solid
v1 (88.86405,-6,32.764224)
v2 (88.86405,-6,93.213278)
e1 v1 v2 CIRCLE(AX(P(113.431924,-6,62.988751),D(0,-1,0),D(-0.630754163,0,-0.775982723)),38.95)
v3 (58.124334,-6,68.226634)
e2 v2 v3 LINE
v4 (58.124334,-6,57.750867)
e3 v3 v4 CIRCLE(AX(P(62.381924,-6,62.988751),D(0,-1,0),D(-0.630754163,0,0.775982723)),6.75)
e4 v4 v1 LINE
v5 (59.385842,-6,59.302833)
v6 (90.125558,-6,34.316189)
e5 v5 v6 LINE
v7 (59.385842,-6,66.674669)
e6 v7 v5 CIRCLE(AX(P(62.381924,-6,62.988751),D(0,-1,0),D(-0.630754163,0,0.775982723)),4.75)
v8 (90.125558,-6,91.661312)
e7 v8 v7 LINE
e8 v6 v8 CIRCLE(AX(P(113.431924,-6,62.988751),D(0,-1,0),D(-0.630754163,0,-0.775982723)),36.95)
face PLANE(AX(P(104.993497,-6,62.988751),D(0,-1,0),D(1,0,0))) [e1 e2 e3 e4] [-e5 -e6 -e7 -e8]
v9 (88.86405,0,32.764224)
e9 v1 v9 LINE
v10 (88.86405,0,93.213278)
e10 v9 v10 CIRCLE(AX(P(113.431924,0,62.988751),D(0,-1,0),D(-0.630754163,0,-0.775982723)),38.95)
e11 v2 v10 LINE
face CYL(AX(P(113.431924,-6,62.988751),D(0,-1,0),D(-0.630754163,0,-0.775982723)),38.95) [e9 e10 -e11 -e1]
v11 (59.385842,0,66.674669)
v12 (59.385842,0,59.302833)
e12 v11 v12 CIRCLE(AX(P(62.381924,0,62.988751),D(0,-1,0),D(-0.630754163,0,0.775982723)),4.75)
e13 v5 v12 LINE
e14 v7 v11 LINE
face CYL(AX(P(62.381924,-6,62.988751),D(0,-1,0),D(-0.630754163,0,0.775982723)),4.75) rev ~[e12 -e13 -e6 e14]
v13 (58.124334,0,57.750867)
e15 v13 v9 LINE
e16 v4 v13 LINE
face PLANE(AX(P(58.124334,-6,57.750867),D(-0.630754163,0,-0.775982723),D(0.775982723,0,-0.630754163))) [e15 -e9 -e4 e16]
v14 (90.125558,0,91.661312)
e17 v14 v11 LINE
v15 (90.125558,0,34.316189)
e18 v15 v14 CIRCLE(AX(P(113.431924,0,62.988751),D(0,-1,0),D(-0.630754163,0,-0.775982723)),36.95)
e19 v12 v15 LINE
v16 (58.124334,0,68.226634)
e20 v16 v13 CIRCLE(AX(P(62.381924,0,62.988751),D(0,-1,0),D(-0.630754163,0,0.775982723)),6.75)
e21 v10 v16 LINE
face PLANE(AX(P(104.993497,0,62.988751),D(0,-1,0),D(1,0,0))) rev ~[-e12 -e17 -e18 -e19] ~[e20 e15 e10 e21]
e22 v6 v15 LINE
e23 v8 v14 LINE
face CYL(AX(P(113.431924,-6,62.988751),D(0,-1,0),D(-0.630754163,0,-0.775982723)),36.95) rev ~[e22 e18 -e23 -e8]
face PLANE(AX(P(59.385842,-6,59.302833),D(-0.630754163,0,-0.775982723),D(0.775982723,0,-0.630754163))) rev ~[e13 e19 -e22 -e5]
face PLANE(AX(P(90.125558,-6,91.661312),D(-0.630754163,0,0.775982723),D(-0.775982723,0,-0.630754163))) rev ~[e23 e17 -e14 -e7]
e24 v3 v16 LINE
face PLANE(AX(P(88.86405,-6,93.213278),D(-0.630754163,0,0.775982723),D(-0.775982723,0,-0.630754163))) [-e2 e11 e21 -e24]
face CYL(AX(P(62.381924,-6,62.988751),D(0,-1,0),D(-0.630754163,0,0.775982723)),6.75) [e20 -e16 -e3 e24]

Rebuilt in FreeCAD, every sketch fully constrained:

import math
import FreeCAD as App
import Part
import Sketcher
from FreeCAD import Vector

doc = App.newDocument("Part")
params = doc.addObject("Spreadsheet::Sheet", "Params")
for row, (alias, value) in enumerate([
    ("sketch1_radius", "37.95 mm"),
    ("sketch1_radius2", "5.75 mm"),
    ("pad1_length", "6 mm"),
    ("sketch2_radius", "4.75 mm"),
    ("sketch2_radius2", "36.95 mm"),
    ("pocket1_length", "25 mm"),
    ("sketch3_radius", "6.75 mm"),
    ("sketch3_radius2", "38.95 mm"),
    ("sketch3_radius3", "5.75 mm"),
    ("pad2_length", "6 mm"),
], start=1):
    params.set(f"A{row}", alias)
    params.set(f"B{row}", "=" + value)
    params.setAlias(f"B{row}", alias)

body = doc.addObject("PartDesign::Body", "Body")

# Sketch on XZ plane
sketch1 = body.newObject("Sketcher::SketchObject", "Sketch")
sketch1.AttachmentSupport = (doc.getObject("XZ_Plane"), [""])
sketch1.MapMode = "FlatFace"
sketch1.addGeometry([
    Part.LineSegment(Vector(58.755088, 58.52685, 0), Vector(89.494804, 33.540206, 0)),
    Part.ArcOfCircle(Part.Circle(Vector(113.431924, 62.988751, 0), Vector(0, 0, 1), 37.95), math.radians(-129.105785), math.radians(129.105785)),
    Part.LineSegment(Vector(89.494804, 92.437295, 0), Vector(58.755088, 67.450651, 0)),
    Part.ArcOfCircle(Part.Circle(Vector(62.381924, 62.988751, 0), Vector(0, 0, 1), 5.75), math.radians(129.105785), math.radians(230.894215)),
], False)
sketch1.addConstraint([
    Sketcher.Constraint("Tangent", 0, 2, 1, 1),
    Sketcher.Constraint("Tangent", 1, 2, 2, 1),
    Sketcher.Constraint("Tangent", 2, 2, 3, 1),
    Sketcher.Constraint("Tangent", 3, 2, 0, 1),
    Sketcher.Constraint("Horizontal", 1, 3, 3, 3),
    Sketcher.Constraint("Radius", 1, 37.95),
    Sketcher.Constraint("Radius", 3, 5.75),
    Sketcher.Constraint("DistanceX", 3, 3, 1, 3, 51.05),
    Sketcher.Constraint("DistanceY", -1, 1, 1, 3, 62.988751),
    Sketcher.Constraint("DistanceX", -1, 1, 1, 3, 113.431924),
])
sketch1.setExpression("Constraints[5]", "Params.sketch1_radius")
sketch1.setExpression("Constraints[6]", "Params.sketch1_radius2")
pad1 = body.newObject("PartDesign::Pad", "Pad")
pad1.Profile = sketch1
pad1.setExpression("Length", "Params.pad1_length")

# Sketch on XZ plane
sketch2 = body.newObject("Sketcher::SketchObject", "Sketch001")
sketch2.AttachmentSupport = (doc.getObject("XZ_Plane"), [""])
sketch2.MapMode = "FlatFace"
sketch2.AttachmentOffset = App.Placement(Vector(0, 0, 6), App.Rotation())
sketch2.addGeometry([
    Part.LineSegment(Vector(90.125558, 91.661312, 0), Vector(59.385842, 66.674669, 0)),
    Part.ArcOfCircle(Part.Circle(Vector(62.381924, 62.988751, 0), Vector(0, 0, 1), 4.75), math.radians(129.105785), math.radians(230.894215)),
    Part.LineSegment(Vector(59.385842, 59.302833, 0), Vector(90.125558, 34.316189, 0)),
    Part.ArcOfCircle(Part.Circle(Vector(113.431924, 62.988751, 0), Vector(0, 0, 1), 36.95), math.radians(-129.105785), math.radians(129.105785)),
], False)
sketch2.addConstraint([
    Sketcher.Constraint("Tangent", 0, 2, 1, 1),
    Sketcher.Constraint("Tangent", 1, 2, 2, 1),
    Sketcher.Constraint("Tangent", 2, 2, 3, 1),
    Sketcher.Constraint("Tangent", 3, 2, 0, 1),
    Sketcher.Constraint("Horizontal", 1, 3, 3, 3),
    Sketcher.Constraint("Radius", 1, 4.75),
    Sketcher.Constraint("Radius", 3, 36.95),
    Sketcher.Constraint("DistanceX", 1, 3, 3, 3, 51.05),
    Sketcher.Constraint("DistanceY", -1, 1, 1, 3, 62.988751),
    Sketcher.Constraint("DistanceX", -1, 1, 2, 2, 90.125558),
])
sketch2.setExpression("Constraints[5]", "Params.sketch2_radius")
sketch2.setExpression("Constraints[6]", "Params.sketch2_radius2")
pocket1 = body.newObject("PartDesign::Pocket", "Pocket")
pocket1.Profile = sketch2
pocket1.setExpression("Length", "Params.pocket1_length")

# Sketch on XZ plane
sketch3 = body.newObject("Sketcher::SketchObject", "Sketch002")
sketch3.AttachmentSupport = (doc.getObject("XZ_Plane"), [""])
sketch3.MapMode = "FlatFace"
sketch3.AttachmentOffset = App.Placement(Vector(0, 0, 6), App.Rotation())
sketch3.addGeometry([
    Part.LineSegment(Vector(88.86405, 93.213278, 0), Vector(58.124334, 68.226634, 0)),  # 0
    Part.ArcOfCircle(Part.Circle(Vector(62.381924, 62.988751, 0), Vector(0, 0, 1), 6.75), math.radians(129.105785), math.radians(230.894215)),  # 1
    Part.LineSegment(Vector(58.124334, 57.750867, 0), Vector(88.86405, 32.764224, 0)),  # 2
    Part.ArcOfCircle(Part.Circle(Vector(113.431924, 62.988751, 0), Vector(0, 0, 1), 38.95), math.radians(-129.105785), math.radians(129.105785)),  # 3
    Part.ArcOfCircle(Part.Circle(Vector(62.381924, 62.988751, 0), Vector(0, 0, 1), 5.75), math.radians(129.105785), math.radians(230.894215)),  # 4
    Part.LineSegment(Vector(58.755088, 67.450651, 0), Vector(89.494804, 92.437295, 0)),  # 5
    Part.ArcOfCircle(Part.Circle(Vector(113.431924, 62.988751, 0), Vector(0, 0, 1), 37.95), math.radians(-129.105785), math.radians(129.105785)),  # 6
    Part.LineSegment(Vector(89.494804, 33.540206, 0), Vector(58.755088, 58.52685, 0)),  # 7
], False)
sketch3.addConstraint([
    Sketcher.Constraint("Tangent", 0, 2, 1, 1),
    Sketcher.Constraint("Tangent", 1, 2, 2, 1),
    Sketcher.Constraint("Tangent", 2, 2, 3, 1),
    Sketcher.Constraint("Tangent", 3, 2, 0, 1),
    Sketcher.Constraint("Tangent", 4, 1, 5, 1),
    Sketcher.Constraint("Tangent", 5, 2, 6, 2),
    Sketcher.Constraint("Tangent", 6, 1, 7, 1),
    Sketcher.Constraint("Tangent", 7, 2, 4, 2),
    Sketcher.Constraint("Coincident", 4, 3, 1, 3),
    Sketcher.Constraint("Coincident", 6, 3, 3, 3),
    Sketcher.Constraint("Parallel", 0, 5),
    Sketcher.Constraint("Horizontal", 1, 3, 3, 3),
    Sketcher.Constraint("Radius", 1, 6.75),
    Sketcher.Constraint("Radius", 3, 38.95),
    Sketcher.Constraint("Radius", 4, 5.75),
    Sketcher.Constraint("DistanceX", 1, 3, 3, 3, 51.05),
    Sketcher.Constraint("DistanceY", -1, 1, 1, 3, 62.988751),
    Sketcher.Constraint("DistanceX", -1, 1, 2, 2, 88.86405),
])
sketch3.setExpression("Constraints[12]", "Params.sketch3_radius")
sketch3.setExpression("Constraints[13]", "Params.sketch3_radius2")
sketch3.setExpression("Constraints[14]", "Params.sketch3_radius3")
pad2 = body.newObject("PartDesign::Pad", "Pad001")
pad2.Profile = sketch3
pad2.setExpression("Length", "Params.pad2_length")
pad2.Reversed = True

doc.recompute()
